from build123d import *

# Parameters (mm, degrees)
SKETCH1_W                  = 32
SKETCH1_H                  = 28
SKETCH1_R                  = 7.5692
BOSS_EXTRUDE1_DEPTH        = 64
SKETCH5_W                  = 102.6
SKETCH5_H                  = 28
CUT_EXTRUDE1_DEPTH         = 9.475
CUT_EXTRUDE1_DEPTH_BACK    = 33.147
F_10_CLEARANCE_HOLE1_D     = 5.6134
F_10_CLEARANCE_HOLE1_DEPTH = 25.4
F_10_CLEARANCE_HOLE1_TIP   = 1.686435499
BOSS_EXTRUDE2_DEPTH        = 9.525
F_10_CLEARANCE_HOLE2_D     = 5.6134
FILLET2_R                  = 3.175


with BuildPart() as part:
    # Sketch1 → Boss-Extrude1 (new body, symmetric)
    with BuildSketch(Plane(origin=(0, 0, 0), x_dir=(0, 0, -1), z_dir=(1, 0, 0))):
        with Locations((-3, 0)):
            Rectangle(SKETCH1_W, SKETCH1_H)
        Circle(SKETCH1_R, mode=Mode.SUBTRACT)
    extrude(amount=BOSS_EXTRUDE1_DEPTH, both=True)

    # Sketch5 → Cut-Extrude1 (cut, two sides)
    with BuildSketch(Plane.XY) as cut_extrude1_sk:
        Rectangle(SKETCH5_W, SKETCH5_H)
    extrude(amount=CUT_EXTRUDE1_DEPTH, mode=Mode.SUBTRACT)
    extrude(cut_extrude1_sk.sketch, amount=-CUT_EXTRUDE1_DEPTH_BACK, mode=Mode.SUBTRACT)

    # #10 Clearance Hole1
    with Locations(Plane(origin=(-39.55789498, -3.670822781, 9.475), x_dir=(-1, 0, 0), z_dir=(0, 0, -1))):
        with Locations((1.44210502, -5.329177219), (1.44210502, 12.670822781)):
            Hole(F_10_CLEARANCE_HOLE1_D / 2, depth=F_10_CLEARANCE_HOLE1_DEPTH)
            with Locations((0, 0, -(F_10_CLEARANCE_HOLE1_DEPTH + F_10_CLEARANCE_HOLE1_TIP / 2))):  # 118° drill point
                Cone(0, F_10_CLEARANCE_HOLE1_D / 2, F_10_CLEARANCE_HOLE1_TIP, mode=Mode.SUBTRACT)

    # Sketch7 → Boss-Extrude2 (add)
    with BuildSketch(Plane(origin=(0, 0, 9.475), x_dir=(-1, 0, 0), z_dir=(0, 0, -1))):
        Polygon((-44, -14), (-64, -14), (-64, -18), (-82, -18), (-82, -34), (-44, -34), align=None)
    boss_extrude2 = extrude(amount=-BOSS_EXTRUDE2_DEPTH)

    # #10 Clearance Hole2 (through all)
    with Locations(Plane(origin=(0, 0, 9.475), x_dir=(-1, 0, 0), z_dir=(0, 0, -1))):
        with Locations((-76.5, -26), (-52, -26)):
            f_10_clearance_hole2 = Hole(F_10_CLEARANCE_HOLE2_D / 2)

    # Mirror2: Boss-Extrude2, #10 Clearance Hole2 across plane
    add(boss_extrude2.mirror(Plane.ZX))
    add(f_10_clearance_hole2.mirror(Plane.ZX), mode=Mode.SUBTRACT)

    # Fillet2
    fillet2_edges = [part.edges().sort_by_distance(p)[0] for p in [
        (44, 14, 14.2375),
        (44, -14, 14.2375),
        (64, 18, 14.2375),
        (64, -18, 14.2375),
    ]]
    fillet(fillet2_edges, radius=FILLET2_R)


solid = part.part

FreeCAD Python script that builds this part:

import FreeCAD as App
import Part
import Sketcher

V = App.Vector


def edges_at(feature, points):
    """Names of the edges that pass closest to the given points."""
    edges = feature.Shape.Edges
    near = lambda p: min(range(len(edges)), key=lambda i: edges[i].distToShape(Part.Vertex(*p))[0])
    return sorted({f"Edge{near(p) + 1}" for p in points})


def add_polygon(sketch, points):
    """Adds a closed chain of lines whose ends are joined by coincident constraints."""
    first, n = sketch.GeometryCount, len(points)
    for a, b in zip(points, points[1:] + points[:1]):
        sketch.addGeometry(Part.LineSegment(App.Vector(*a, 0), App.Vector(*b, 0)), False)
    for i in range(n):
        sketch.addConstraint(Sketcher.Constraint("Coincident", first + i, 2, first + (i + 1) % n, 1))

doc = App.newDocument("Part")
body = doc.addObject("PartDesign::Body", "Body")

# Sketch on YZ plane
sketch1 = doc.addObject("Sketcher::SketchObject", "Sketch")
body.addObject(sketch1)
sketch1.AttachmentSupport = (doc.YZ_Plane, [""])
sketch1.MapMode = "FlatFace"
add_polygon(sketch1, [(14, 19), (-14, 19), (-14, -13), (14, -13)])  # lines 0-3
sketch1.addGeometry(Part.Circle(V(0, 0, 0), V(0, 0, 1), 8), False)  # 4
sketch1.addConstraint([
    Sketcher.Constraint("Horizontal", 0),
    Sketcher.Constraint("Vertical", 1),
    Sketcher.Constraint("Horizontal", 2),
    Sketcher.Constraint("Vertical", 3),
    Sketcher.Constraint("Coincident", 4, 3, -1, 1),
    Sketcher.Constraint("DistanceX", 0, 2, 0, 1, 28.0),
    Sketcher.Constraint("DistanceY", 1, 2, 1, 1, 32.0),
    Sketcher.Constraint("DistanceX", 0, 2, -1, 1, 14.0),
    Sketcher.Constraint("DistanceY", -1, 1, 0, 2, 19.0),
    Sketcher.Constraint("Diameter", 4, 15.1384),
])
pad1 = doc.addObject("PartDesign::Pad", "Pad")
body.addObject(pad1)
pad1.Profile = sketch1
pad1.Length = 128
pad1.Midplane = True

# Sketch on XY plane
sketch2 = doc.addObject("Sketcher::SketchObject", "Sketch001")
body.addObject(sketch2)
sketch2.AttachmentSupport = (doc.XY_Plane, [""])
sketch2.MapMode = "FlatFace"
add_polygon(sketch2, [(-51, 14), (-51, -14), (51, -14), (51, 14)])  # lines 0-3
sketch2.addConstraint([
    Sketcher.Constraint("Vertical", 0),
    Sketcher.Constraint("Horizontal", 1),
    Sketcher.Constraint("Vertical", 2),
    Sketcher.Constraint("Horizontal", 3),
    Sketcher.Constraint("Symmetric", 0, 2, 2, 2, -1, 1),
    Sketcher.Constraint("DistanceY", 0, 2, 0, 1, 28.0),
    Sketcher.Constraint("DistanceX", 1, 1, 1, 2, 102.6),
])
pocket1 = doc.addObject("PartDesign::Pocket", "Pocket")
body.addObject(pocket1)
pocket1.Profile = sketch2
pocket1.Type = "TwoLengths"
pocket1.Length = 9.475
pocket1.Length2 = 33.147
pocket1.Reversed = True

# Sketch on XY plane
sketch3 = doc.addObject("Sketcher::SketchObject", "Sketch002")
body.addObject(sketch3)
sketch3.AttachmentSupport = (doc.XY_Plane, [""])
sketch3.MapMode = "FlatFace"
sketch3.AttachmentOffset = App.Placement(V(0, 0, 9.475), App.Rotation())
sketch3.addGeometry([
    Part.Circle(V(-41, -9, 0), V(0, 0, 1), 2.8),
    Part.Circle(V(-41, 9, 0), V(0, 0, 1), 2.8),
], False)
sketch3.addConstraint([
    Sketcher.Constraint("Equal", 0, 1),
    Sketcher.Constraint("Symmetric", 0, 3, 1, 3, -1),
    Sketcher.Constraint("DistanceX", 0, 3, -1, 1, 41.0),
    Sketcher.Constraint("DistanceY", 0, 3, -1, 1, 9.0),
    Sketcher.Constraint("Diameter", 0, 5.6134),
])
doc.recompute()
hole = doc.addObject("PartDesign::Hole", "Hole")
body.addObject(hole)
hole.Profile = sketch3
hole.ThreadType = "None"
hole.Diameter = 5.6134
hole.DepthType = "Dimension"
hole.Depth = 25.4
hole.DrillPoint = "Angled"
hole.DrillPointAngle = 118
hole.Reversed = True

# Sketch on XY plane
sketch4 = doc.addObject("Sketcher::SketchObject", "Sketch003")
body.addObject(sketch4)
sketch4.AttachmentSupport = (doc.XY_Plane, [""])
sketch4.MapMode = "FlatFace"
sketch4.AttachmentOffset = App.Placement(V(0, 0, 9.475), App.Rotation())
add_polygon(sketch4, [(44, -14), (64, -14), (64, -18), (82, -18), (82, -34), (44, -34)])  # lines 0-5
sketch4.addConstraint([
    Sketcher.Constraint("Horizontal", 0),
    Sketcher.Constraint("Vertical", 1),
    Sketcher.Constraint("Horizontal", 2),
    Sketcher.Constraint("Vertical", 3),
    Sketcher.Constraint("Horizontal", 4),
    Sketcher.Constraint("Vertical", 5),
    Sketcher.Constraint("Equal", 0, 5),
    Sketcher.Constraint("DistanceX", 0, 1, 0, 2, 20.0),
    Sketcher.Constraint("DistanceX", 2, 1, 2, 2, 18.0),
    Sketcher.Constraint("DistanceY", 1, 2, 1, 1, 4.0),
    Sketcher.Constraint("DistanceX", -1, 1, 0, 2, 64.0),
    Sketcher.Constraint("DistanceY", 0, 2, -1, 1, 14.0),
])
pad2 = doc.addObject("PartDesign::Pad", "Pad001")
body.addObject(pad2)
pad2.Profile = sketch4
pad2.Length = 9.525

# Sketch on XY plane
sketch5 = doc.addObject("Sketcher::SketchObject", "Sketch004")
body.addObject(sketch5)
sketch5.AttachmentSupport = (doc.XY_Plane, [""])
sketch5.MapMode = "FlatFace"
sketch5.AttachmentOffset = App.Placement(V(0, 0, 9.475), App.Rotation())
sketch5.addGeometry([
    Part.Circle(V(76.5, -26, 0), V(0, 0, 1), 2.8),
    Part.Circle(V(52, -26, 0), V(0, 0, 1), 2.8),
], False)
sketch5.addConstraint([
    Sketcher.Constraint("Equal", 0, 1),
    Sketcher.Constraint("Horizontal", 0, 3, 1, 3),
    Sketcher.Constraint("DistanceY", 0, 3, -1, 1, 26.0),
    Sketcher.Constraint("DistanceX", -1, 1, 1, 3, 52.0),
    Sketcher.Constraint("Diameter", 0, 5.6134),
    Sketcher.Constraint("DistanceX", -1, 1, 0, 3, 76.5),
])
doc.recompute()
hole2 = doc.addObject("PartDesign::Hole", "Hole001")
body.addObject(hole2)
hole2.Profile = sketch5
hole2.ThreadType = "None"
hole2.Diameter = 5.6134
hole2.DepthType = "ThroughAll"
hole2.Reversed = True
doc.recompute()

mirrored = doc.addObject("PartDesign::Mirrored", "Mirrored")
body.addObject(mirrored)
mirrored.Originals = [pad2, hole2]
mirrored.MirrorPlane = (doc.XZ_Plane, [""])
body.Tip = mirrored
doc.recompute()

fillet = doc.addObject("PartDesign::Fillet", "Fillet")
body.addObject(fillet)
fillet.Base = (mirrored, edges_at(mirrored, [
    (44, 14, 14.238),
    (44, -14, 14.238),
    (64, 18, 14.238),
    (64, -18, 14.238),
]))
fillet.Radius = 3.175

doc.recompute()
